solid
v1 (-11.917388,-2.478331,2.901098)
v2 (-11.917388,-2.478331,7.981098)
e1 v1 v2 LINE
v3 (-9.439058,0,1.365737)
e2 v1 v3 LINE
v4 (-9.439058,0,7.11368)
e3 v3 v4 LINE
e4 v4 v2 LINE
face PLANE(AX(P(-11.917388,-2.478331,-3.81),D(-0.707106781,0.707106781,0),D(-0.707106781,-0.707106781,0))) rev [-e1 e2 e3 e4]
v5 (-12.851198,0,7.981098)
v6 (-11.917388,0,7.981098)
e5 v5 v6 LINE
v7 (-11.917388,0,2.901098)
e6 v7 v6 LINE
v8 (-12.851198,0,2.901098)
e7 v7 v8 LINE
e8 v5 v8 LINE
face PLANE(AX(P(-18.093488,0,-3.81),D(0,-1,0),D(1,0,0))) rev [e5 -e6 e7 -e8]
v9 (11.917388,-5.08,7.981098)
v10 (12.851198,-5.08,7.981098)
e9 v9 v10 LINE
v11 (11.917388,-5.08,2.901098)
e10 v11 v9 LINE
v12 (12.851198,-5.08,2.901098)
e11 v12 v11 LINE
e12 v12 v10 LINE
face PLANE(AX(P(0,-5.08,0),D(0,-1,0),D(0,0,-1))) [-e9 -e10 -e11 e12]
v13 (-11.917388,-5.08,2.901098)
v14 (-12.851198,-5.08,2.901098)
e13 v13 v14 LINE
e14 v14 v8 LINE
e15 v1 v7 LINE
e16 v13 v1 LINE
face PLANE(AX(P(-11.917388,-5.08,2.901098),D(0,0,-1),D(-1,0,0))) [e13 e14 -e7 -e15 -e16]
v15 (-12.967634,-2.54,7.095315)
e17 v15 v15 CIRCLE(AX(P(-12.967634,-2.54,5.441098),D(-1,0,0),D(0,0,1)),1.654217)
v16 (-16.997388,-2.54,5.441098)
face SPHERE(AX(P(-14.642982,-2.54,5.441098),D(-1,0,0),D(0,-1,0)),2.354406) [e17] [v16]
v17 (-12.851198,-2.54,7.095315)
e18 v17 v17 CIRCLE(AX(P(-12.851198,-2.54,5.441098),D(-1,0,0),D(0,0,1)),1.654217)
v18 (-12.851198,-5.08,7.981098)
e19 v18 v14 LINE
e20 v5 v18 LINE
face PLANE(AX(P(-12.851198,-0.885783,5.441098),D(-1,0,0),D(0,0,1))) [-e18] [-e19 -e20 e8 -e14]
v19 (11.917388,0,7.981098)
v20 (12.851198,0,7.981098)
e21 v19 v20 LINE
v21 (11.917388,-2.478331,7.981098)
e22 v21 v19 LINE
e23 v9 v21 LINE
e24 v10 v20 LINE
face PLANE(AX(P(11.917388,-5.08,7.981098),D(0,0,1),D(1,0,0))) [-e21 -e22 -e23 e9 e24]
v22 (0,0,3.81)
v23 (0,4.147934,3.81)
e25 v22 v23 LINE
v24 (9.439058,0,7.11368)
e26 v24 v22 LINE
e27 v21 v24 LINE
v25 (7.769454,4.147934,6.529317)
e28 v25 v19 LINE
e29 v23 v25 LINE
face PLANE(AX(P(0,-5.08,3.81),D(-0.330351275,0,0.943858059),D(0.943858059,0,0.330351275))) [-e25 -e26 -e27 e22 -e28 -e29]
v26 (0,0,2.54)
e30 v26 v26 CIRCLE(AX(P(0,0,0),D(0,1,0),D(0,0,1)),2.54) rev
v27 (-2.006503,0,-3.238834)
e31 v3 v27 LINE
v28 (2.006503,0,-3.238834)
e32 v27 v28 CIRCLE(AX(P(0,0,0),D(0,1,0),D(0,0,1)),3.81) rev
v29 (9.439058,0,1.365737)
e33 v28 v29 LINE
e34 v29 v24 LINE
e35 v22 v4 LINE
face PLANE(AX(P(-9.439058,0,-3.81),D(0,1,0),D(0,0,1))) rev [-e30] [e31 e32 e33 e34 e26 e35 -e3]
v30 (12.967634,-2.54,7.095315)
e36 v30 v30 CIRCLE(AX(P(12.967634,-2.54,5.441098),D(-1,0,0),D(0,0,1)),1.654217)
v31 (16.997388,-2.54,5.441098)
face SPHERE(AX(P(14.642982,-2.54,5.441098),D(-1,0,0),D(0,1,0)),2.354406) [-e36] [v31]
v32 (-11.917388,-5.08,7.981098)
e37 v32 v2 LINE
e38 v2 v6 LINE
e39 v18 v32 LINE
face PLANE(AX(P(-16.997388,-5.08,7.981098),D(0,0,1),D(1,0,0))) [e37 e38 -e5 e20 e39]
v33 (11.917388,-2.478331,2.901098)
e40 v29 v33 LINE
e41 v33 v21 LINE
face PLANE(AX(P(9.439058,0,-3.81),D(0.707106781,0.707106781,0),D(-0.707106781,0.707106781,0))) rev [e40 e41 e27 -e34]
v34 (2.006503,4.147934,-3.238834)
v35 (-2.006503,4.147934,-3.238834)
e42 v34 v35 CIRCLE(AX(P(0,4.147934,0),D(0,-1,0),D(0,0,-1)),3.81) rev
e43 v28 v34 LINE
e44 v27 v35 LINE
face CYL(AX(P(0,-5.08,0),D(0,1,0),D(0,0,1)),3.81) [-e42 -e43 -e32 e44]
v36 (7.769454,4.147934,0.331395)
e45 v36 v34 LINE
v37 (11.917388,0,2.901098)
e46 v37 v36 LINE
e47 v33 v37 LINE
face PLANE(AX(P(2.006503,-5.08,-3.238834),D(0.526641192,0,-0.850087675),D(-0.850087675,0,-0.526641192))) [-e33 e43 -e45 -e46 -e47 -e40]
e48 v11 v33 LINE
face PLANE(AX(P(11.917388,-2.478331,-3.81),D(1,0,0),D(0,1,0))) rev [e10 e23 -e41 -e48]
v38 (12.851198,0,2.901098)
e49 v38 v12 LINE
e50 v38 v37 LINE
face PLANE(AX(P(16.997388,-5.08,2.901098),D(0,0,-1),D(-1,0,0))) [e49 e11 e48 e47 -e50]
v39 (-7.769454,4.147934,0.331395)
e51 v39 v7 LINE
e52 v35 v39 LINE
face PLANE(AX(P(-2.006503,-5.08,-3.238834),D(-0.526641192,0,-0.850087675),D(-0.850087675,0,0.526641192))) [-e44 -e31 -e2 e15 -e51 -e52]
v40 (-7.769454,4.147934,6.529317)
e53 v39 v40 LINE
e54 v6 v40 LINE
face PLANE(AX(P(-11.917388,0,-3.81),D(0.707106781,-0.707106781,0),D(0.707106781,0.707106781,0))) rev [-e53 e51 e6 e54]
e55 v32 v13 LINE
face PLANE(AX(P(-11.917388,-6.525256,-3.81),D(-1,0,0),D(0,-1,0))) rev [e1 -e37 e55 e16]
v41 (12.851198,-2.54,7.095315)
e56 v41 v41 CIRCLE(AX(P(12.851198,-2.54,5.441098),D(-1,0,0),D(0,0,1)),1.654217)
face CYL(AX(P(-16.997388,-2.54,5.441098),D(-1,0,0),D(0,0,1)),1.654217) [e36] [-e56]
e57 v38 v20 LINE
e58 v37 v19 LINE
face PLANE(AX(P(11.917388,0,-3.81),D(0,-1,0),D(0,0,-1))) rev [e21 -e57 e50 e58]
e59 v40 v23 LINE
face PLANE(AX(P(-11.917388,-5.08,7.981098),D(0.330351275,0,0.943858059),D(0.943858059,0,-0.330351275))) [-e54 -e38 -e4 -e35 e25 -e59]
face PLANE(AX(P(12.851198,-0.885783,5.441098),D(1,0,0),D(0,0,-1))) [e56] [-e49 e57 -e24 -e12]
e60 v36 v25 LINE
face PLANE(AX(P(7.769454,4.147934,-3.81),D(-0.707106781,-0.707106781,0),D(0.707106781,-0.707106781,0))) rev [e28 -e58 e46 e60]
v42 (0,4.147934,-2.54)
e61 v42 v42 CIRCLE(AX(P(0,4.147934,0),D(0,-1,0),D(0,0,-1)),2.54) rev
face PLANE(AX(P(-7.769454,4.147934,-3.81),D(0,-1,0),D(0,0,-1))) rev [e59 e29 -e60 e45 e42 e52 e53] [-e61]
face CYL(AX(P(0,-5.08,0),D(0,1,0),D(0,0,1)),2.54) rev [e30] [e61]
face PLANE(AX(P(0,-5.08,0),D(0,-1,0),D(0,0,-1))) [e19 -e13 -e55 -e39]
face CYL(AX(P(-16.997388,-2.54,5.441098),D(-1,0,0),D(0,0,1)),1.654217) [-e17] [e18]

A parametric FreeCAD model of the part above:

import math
import FreeCAD as App
import Part
import Sketcher
Q = App.Units.Quantity

doc = App.newDocument("Part")
params = doc.addObject("Spreadsheet::Sheet", "Params")
for row, (alias, value) in enumerate([
    ("sketch1_diameter", "0.2 in"),
    ("sketch1_radius", "0.15 in"),
    ("sketch1_width", "0.2 in"),
    ("pad1_length", "0.2 in"),
    ("pad1_length2", "0.2 in"),
    ("groove_angle", "360 deg"),
], start=1):
    params.set(f"A{row}", alias)
    params.set(f"B{row}", "=" + value)
    params.setAlias(f"B{row}", alias)

body = doc.addObject("PartDesign::Body", "Body")

# Sketch on XZ plane
sketch1 = body.newObject("Sketcher::SketchObject", "Sketch")
sketch1.AttachmentSupport = (doc.getObject("XZ_Plane"), [""])
sketch1.MapMode = "FlatFace"
sketch1.addGeometry([
    Part.LineSegment(App.Vector(-2, -3.2, 0), App.Vector(-11.9, 2.9, 0)),  # 0
    Part.LineSegment(App.Vector(-11.9, 2.9, 0), App.Vector(-17, 2.9, 0)),  # 1
    Part.LineSegment(App.Vector(-17, 2.9, 0), App.Vector(-17, 8, 0)),  # 2
    Part.LineSegment(App.Vector(-17, 8, 0), App.Vector(-11.9, 8, 0)),  # 3
    Part.LineSegment(App.Vector(-11.9, 8, 0), App.Vector(0, 3.8, 0)),  # 4
    Part.LineSegment(App.Vector(0, 3.8, 0), App.Vector(11.9, 8, 0)),  # 5
    Part.LineSegment(App.Vector(11.9, 8, 0), App.Vector(17, 8, 0)),  # 6
    Part.LineSegment(App.Vector(17, 8, 0), App.Vector(17, 2.9, 0)),  # 7
    Part.LineSegment(App.Vector(17, 2.9, 0), App.Vector(11.9, 2.9, 0)),  # 8
    Part.LineSegment(App.Vector(11.9, 2.9, 0), App.Vector(2, -3.2, 0)),  # 9
    Part.ArcOfCircle(Part.Circle(App.Vector(0, 0, 0), App.Vector(0, 0, 1), 3.8), math.radians(-122), math.radians(-58)),  # 10
    Part.Circle(App.Vector(0, 0, 0), App.Vector(0, 0, 1), 2.5),  # 11
], False)
sketch1.addConstraint([
    Sketcher.Constraint("Coincident", 0, 2, 1, 1),
    Sketcher.Constraint("Coincident", 1, 2, 2, 1),
    Sketcher.Constraint("Coincident", 2, 2, 3, 1),
    Sketcher.Constraint("Coincident", 3, 2, 4, 1),
    Sketcher.Constraint("Coincident", 4, 2, 5, 1),
    Sketcher.Constraint("Coincident", 5, 2, 6, 1),
    Sketcher.Constraint("Coincident", 6, 2, 7, 1),
    Sketcher.Constraint("Coincident", 7, 2, 8, 1),
    Sketcher.Constraint("Coincident", 8, 2, 9, 1),
    Sketcher.Constraint("Tangent", 9, 2, 10, 2),
    Sketcher.Constraint("Tangent", 10, 1, 0, 1),
    Sketcher.Constraint("Horizontal", 1),
    Sketcher.Constraint("Vertical", 2),
    Sketcher.Constraint("Horizontal", 3),
    Sketcher.Constraint("Horizontal", 6),
    Sketcher.Constraint("Vertical", 7),
    Sketcher.Constraint("Horizontal", 8),
    Sketcher.Constraint("Coincident", 10, 3, -1, 1),
    Sketcher.Constraint("Coincident", 11, 3, -1, 1),
    Sketcher.Constraint("Symmetric", 3, 2, 5, 2, -2),
    Sketcher.Constraint("Symmetric", 1, 2, 7, 2, -2),
    Sketcher.Constraint("PointOnObject", 4, 2, -2),
    Sketcher.Constraint("Horizontal", 9, 2, 10, 1),
    Sketcher.Constraint("Vertical", 0, 2, 3, 2),
    Sketcher.Constraint("Equal", 8, 2),
    Sketcher.Constraint("Diameter", 11, Q("0.2 in")),
    Sketcher.Constraint("Radius", 10, Q("0.15 in")),
    Sketcher.Constraint("DistanceX", 1, 2, 1, 1, Q("0.2 in")),
    Sketcher.Constraint("DistanceY", -1, 1, 4, 2, Q("0.15 in")),
    Sketcher.Constraint("DistanceY", 10, 3, 0, 2, 2.901098),
    Sketcher.Constraint("Distance", 4, 12.626251),
])
sketch1.setExpression("Constraints[25]", "Params.sketch1_diameter")
sketch1.setExpression("Constraints[26]", "Params.sketch1_radius")
sketch1.setExpression("Constraints[27]", "Params.sketch1_width")
pad1 = body.newObject("PartDesign::Pad", "Pad")
pad1.Profile = sketch1
pad1.Type = "TwoLengths"
pad1.setExpression("Length", "Params.pad1_length")
pad1.setExpression("Length2", "Params.pad1_length2")
pad1.Reversed = True

# Sketch on XY plane
sketch2 = body.newObject("Sketcher::SketchObject", "Sketch001")
sketch2.AttachmentSupport = (doc.getObject("XY_Plane"), [""])
sketch2.MapMode = "FlatFace"
sketch2.addGeometry([
    Part.LineSegment(App.Vector(-11.9, -2.5, 0), App.Vector(-11.9, -6.5, 0)),  # 0
    Part.LineSegment(App.Vector(-11.9, -6.5, 0), App.Vector(11.9, -6.5, 0)),  # 1
    Part.LineSegment(App.Vector(11.9, -6.5, 0), App.Vector(11.9, -2.5, 0)),  # 2
    Part.LineSegment(App.Vector(11.9, -2.5, 0), App.Vector(9.4, 0, 0)),  # 3
    Part.LineSegment(App.Vector(9.4, 0, 0), App.Vector(-9.4, 0, 0)),  # 4
    Part.LineSegment(App.Vector(-9.4, 0, 0), App.Vector(-11.9, -2.5, 0)),  # 5
    Part.LineSegment(App.Vector(-18.1, 0, 0), App.Vector(-11.9, 0, 0)),  # 6
    Part.LineSegment(App.Vector(-11.9, 0, 0), App.Vector(-7.8, 4.1, 0)),  # 7
    Part.LineSegment(App.Vector(-7.8, 4.1, 0), App.Vector(7.8, 4.1, 0)),  # 8
    Part.LineSegment(App.Vector(7.8, 4.1, 0), App.Vector(11.9, 0, 0)),  # 9
    Part.LineSegment(App.Vector(11.9, 0, 0), App.Vector(18.1, 0, 0)),  # 10
    Part.LineSegment(App.Vector(18.1, 0, 0), App.Vector(18.1, 7.6, 0)),  # 11
    Part.LineSegment(App.Vector(18.1, 7.6, 0), App.Vector(-18.1, 7.6, 0)),  # 12
    Part.LineSegment(App.Vector(-18.1, 7.6, 0), App.Vector(-18.1, 0, 0)),  # 13
], False)
sketch2.addConstraint([
    Sketcher.Constraint("Coincident", 0, 2, 1, 1),
    Sketcher.Constraint("Coincident", 1, 2, 2, 1),
    Sketcher.Constraint("Coincident", 2, 2, 3, 1),
    Sketcher.Constraint("Coincident", 3, 2, 4, 1),
    Sketcher.Constraint("Coincident", 4, 2, 5, 1),
    Sketcher.Constraint("Coincident", 5, 2, 0, 1),
    Sketcher.Constraint("Coincident", 6, 2, 7, 1),
    Sketcher.Constraint("Coincident", 7, 2, 8, 1),
    Sketcher.Constraint("Coincident", 8, 2, 9, 1),
    Sketcher.Constraint("Coincident", 9, 2, 10, 1),
    Sketcher.Constraint("Coincident", 10, 2, 11, 1),
    Sketcher.Constraint("Coincident", 11, 2, 12, 1),
    Sketcher.Constraint("Coincident", 12, 2, 13, 1),
    Sketcher.Constraint("Coincident", 13, 2, 6, 1),
    Sketcher.Constraint("Vertical", 0),
    Sketcher.Constraint("Horizontal", 1),
    Sketcher.Constraint("Vertical", 2),
    Sketcher.Constraint("Horizontal", 4),
    Sketcher.Constraint("Horizontal", 6),
    Sketcher.Constraint("Horizontal", 8),
    Sketcher.Constraint("Horizontal", 10),
    Sketcher.Constraint("Vertical", 11),
    Sketcher.Constraint("Horizontal", 12),
    Sketcher.Constraint("Vertical", 13),
    Sketcher.Constraint("Symmetric", 3, 2, 4, 2, -1, 1),
    Sketcher.Constraint("Symmetric", 6, 2, 9, 2, -1, 1),
    Sketcher.Constraint("Symmetric", 2, 2, 5, 2, -2),
    Sketcher.Constraint("PointOnObject", 6, 2, -1),
    Sketcher.Constraint("Perpendicular", 3, 5),
    Sketcher.Constraint("Parallel", 5, 7),
    Sketcher.Constraint("Perpendicular", 7, 9),
    Sketcher.Constraint("Vertical", 5, 2, 6, 2),
    Sketcher.Constraint("DistanceX", 6, 1, 6, 2, 6.176099),
    Sketcher.Constraint("DistanceY", 0, 2, -1, 1, Q("0.2568998 in")),
    Sketcher.Constraint("DistanceX", 8, 1, 8, 2, 15.538909),
    Sketcher.Constraint("DistanceX", 10, 1, 10, 2, 6.201161),
    Sketcher.Constraint("Distance", 3, 3.504889),
    Sketcher.Constraint("DistanceX", 1, 1, 1, 2, 23.834777),
    Sketcher.Constraint("DistanceY", 11, 1, 11, 2, 7.571716),
])
pocket1 = body.newObject("PartDesign::Pocket", "Pocket")
pocket1.Profile = sketch2
pocket1.Type = "ThroughAll"
pocket1.Midplane = True

# Sketch on XY plane
sketch3 = body.newObject("Sketcher::SketchObject", "Sketch002")
sketch3.AttachmentSupport = (doc.getObject("XY_Plane"), [""])
sketch3.MapMode = "FlatFace"
sketch3.AttachmentOffset = App.Placement(App.Vector(0, 0, 5.441098), App.Rotation())
sketch3.addGeometry([
    Part.LineSegment(App.Vector(-12.97, -0.89, 0), App.Vector(-12.85, -0.89, 0)),  # 0
    Part.LineSegment(App.Vector(-12.85, -0.89, 0), App.Vector(-12.85, 1.8, 0)),  # 1
    Part.LineSegment(App.Vector(-12.85, 1.8, 0), App.Vector(-18.16, 1.8, 0)),  # 2
    Part.LineSegment(App.Vector(-18.16, 1.8, 0), App.Vector(-18.16, -2.54, 0)),  # 3
    Part.LineSegment(App.Vector(-18.16, -2.54, 0), App.Vector(-17, -2.54, 0)),  # 4
    Part.ArcOfCircle(Part.Circle(App.Vector(-14.64, -2.54, 0), App.Vector(0, 0, 1), 2.35), math.radians(45), math.radians(180)),  # 5
    Part.LineSegment(App.Vector(12.85, 1.8, 0), App.Vector(12.85, -0.89, 0)),  # 6
    Part.LineSegment(App.Vector(12.85, -0.89, 0), App.Vector(12.97, -0.89, 0)),  # 7
    Part.ArcOfCircle(Part.Circle(App.Vector(14.64, -2.54, 0), App.Vector(0, 0, 1), 2.35), math.radians(0), math.radians(135)),  # 8
    Part.LineSegment(App.Vector(17, -2.54, 0), App.Vector(18.16, -2.54, 0)),  # 9
    Part.LineSegment(App.Vector(18.16, -2.54, 0), App.Vector(18.16, 1.8, 0)),  # 10
    Part.LineSegment(App.Vector(18.16, 1.8, 0), App.Vector(12.85, 1.8, 0)),  # 11
], False)
sketch3.addGeometry(Part.LineSegment(App.Vector(-18.16, -2.54, 0), App.Vector(18.16, -2.54, 0)), True)  # axis
sketch3.addConstraint([
    Sketcher.Constraint("Coincident", 0, 2, 1, 1),
    Sketcher.Constraint("Coincident", 1, 2, 2, 1),
    Sketcher.Constraint("Coincident", 2, 2, 3, 1),
    Sketcher.Constraint("Coincident", 3, 2, 4, 1),
    Sketcher.Constraint("Coincident", 4, 2, 5, 2),
    Sketcher.Constraint("Coincident", 5, 1, 0, 1),
    Sketcher.Constraint("Coincident", 6, 2, 7, 1),
    Sketcher.Constraint("Coincident", 7, 2, 8, 2),
    Sketcher.Constraint("Coincident", 8, 1, 9, 1),
    Sketcher.Constraint("Coincident", 9, 2, 10, 1),
    Sketcher.Constraint("Coincident", 10, 2, 11, 1),
    Sketcher.Constraint("Coincident", 11, 2, 6, 1),
    Sketcher.Constraint("Horizontal", 0),
    Sketcher.Constraint("Vertical", 1),
    Sketcher.Constraint("Horizontal", 2),
    Sketcher.Constraint("Vertical", 3),
    Sketcher.Constraint("Horizontal", 4),
    Sketcher.Constraint("Vertical", 6),
    Sketcher.Constraint("Horizontal", 7),
    Sketcher.Constraint("Horizontal", 9),
    Sketcher.Constraint("Vertical", 10),
    Sketcher.Constraint("Horizontal", 11),
    Sketcher.Constraint("Horizontal", 12),
    Sketcher.Constraint("Coincident", 12, 1, 3, 2),
    Sketcher.Constraint("Coincident", 12, 2, 9, 2),
    Sketcher.Constraint("Equal", 5, 8),
    Sketcher.Constraint("Symmetric", 5, 3, 8, 3, -2),
    Sketcher.Constraint("Symmetric", 0, 2, 6, 2, -2),
    Sketcher.Constraint("Symmetric", 2, 2, 10, 2, -2),
    Sketcher.Constraint("Horizontal", 8, 3, 3, 2),
    Sketcher.Constraint("DistanceY", 5, 3, -1, 1, Q("0.1 in")),
    Sketcher.Constraint("Radius", 5, 2.354406),
    Sketcher.Constraint("DistanceX", 12, 1, 12, 2, 36.316621),
    Sketcher.Constraint("DistanceY", 3, 2, 3, 1, 4.341062),
    Sketcher.Constraint("DistanceX", 0, 1, 0, 2, 0.116436),
    Sketcher.Constraint("DistanceX", 2, 2, 2, 1, 5.307113),
    Sketcher.Constraint("DistanceX", 4, 1, 4, 2, 1.160922),
])
groove = body.newObject("PartDesign::Groove", "Groove")
groove.Profile = sketch3
groove.ReferenceAxis = (sketch3, ["Axis0"])
groove.setExpression("Angle", "Params.groove_angle")

doc.recompute()
